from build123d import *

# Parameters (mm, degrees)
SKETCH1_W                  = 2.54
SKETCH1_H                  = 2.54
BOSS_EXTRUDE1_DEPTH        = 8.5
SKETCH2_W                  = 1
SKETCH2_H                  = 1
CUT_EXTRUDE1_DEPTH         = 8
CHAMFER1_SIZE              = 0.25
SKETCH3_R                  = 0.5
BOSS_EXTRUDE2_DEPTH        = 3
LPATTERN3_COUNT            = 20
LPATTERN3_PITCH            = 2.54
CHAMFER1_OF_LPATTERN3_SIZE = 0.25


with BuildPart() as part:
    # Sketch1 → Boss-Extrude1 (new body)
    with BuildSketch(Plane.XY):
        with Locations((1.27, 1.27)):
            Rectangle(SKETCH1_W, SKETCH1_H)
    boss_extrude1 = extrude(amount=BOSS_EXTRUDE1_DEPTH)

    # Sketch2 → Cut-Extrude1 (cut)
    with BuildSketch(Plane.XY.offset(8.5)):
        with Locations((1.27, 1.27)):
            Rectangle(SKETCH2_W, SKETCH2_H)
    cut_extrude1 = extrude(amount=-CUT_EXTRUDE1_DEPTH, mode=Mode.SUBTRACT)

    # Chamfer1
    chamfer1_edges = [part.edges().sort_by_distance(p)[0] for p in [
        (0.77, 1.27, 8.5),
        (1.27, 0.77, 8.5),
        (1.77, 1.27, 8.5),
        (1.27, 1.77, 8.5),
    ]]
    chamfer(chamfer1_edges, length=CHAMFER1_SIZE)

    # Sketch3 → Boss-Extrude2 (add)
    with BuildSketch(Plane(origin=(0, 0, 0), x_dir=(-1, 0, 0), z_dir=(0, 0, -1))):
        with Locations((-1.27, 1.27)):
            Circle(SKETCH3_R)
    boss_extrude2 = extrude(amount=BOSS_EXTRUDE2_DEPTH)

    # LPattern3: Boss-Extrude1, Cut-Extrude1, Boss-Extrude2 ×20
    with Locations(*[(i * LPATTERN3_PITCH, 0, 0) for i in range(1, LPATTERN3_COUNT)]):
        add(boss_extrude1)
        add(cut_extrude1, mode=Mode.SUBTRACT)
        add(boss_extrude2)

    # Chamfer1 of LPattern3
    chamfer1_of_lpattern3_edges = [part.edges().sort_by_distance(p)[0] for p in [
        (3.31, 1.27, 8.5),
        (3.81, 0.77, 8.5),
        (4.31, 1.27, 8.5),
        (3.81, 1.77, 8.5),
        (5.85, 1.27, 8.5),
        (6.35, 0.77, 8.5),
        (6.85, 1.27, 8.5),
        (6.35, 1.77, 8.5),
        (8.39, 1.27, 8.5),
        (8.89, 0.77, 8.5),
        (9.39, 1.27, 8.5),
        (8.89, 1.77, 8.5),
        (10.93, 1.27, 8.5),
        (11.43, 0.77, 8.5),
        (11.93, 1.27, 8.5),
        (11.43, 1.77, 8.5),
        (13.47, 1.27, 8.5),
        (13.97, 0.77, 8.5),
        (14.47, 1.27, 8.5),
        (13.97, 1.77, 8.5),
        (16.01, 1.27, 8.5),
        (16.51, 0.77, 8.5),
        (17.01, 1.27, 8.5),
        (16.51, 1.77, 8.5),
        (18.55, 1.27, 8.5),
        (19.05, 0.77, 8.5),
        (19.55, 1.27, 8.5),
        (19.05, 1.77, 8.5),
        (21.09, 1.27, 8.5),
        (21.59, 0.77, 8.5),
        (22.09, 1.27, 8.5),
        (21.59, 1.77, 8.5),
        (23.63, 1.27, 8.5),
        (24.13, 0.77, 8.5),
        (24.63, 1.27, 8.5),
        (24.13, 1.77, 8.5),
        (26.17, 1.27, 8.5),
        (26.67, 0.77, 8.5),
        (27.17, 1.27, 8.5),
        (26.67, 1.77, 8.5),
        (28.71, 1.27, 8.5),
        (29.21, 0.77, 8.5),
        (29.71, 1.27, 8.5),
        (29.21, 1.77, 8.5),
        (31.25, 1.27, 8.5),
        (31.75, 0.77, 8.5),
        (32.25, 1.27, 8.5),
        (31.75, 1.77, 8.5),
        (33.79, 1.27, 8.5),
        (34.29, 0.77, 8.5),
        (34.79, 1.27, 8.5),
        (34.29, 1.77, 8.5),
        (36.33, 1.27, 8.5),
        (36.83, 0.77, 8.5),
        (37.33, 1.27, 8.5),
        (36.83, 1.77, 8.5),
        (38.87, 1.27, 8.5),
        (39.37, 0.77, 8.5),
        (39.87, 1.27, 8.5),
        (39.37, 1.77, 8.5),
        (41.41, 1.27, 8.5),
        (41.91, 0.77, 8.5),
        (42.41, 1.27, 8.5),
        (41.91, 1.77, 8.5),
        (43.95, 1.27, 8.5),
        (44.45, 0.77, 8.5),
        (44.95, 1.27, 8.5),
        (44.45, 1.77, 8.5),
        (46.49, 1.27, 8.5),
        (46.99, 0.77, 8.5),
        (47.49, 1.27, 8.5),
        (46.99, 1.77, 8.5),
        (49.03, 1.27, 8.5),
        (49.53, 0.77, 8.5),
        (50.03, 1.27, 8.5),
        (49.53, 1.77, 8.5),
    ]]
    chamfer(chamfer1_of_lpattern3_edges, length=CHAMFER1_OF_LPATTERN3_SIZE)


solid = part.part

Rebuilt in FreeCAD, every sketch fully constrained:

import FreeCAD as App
import Part
import Sketcher

V = App.Vector


def edges_at(feature, points):
    """Names of the edges that pass closest to the given points."""
    edges = feature.Shape.Edges
    near = lambda p: min(range(len(edges)), key=lambda i: edges[i].distToShape(Part.Vertex(*p))[0])
    return sorted({f"Edge{near(p) + 1}" for p in points})


def add_polygon(sketch, points):
    """Adds a closed chain of lines whose ends are joined by coincident constraints."""
    first, n = sketch.GeometryCount, len(points)
    for a, b in zip(points, points[1:] + points[:1]):
        sketch.addGeometry(Part.LineSegment(App.Vector(*a, 0), App.Vector(*b, 0)), False)
    for i in range(n):
        sketch.addConstraint(Sketcher.Constraint("Coincident", first + i, 2, first + (i + 1) % n, 1))

doc = App.newDocument("Part")
body = doc.addObject("PartDesign::Body", "Body")

# Sketch on XY plane
sketch1 = body.newObject("Sketcher::SketchObject", "Sketch")
sketch1.AttachmentSupport = (doc.getObject("XY_Plane"), [""])
sketch1.MapMode = "FlatFace"
add_polygon(sketch1, [(0, 2.54), (0, 0), (2.54, 0), (2.54, 2.54)])  # lines 0-3
sketch1.addConstraint([
    Sketcher.Constraint("Vertical", 0),
    Sketcher.Constraint("Horizontal", 1),
    Sketcher.Constraint("Vertical", 2),
    Sketcher.Constraint("Horizontal", 3),
    Sketcher.Constraint("Coincident", 0, 2, -1, 1),
    Sketcher.Constraint("Equal", 3, 0),
    Sketcher.Constraint("DistanceX", 1, 1, 1, 2, 2.54),
])
pad1 = body.newObject("PartDesign::Pad", "Pad")
pad1.Profile = sketch1
pad1.Length = 8.5

# Sketch on XY plane
sketch2 = body.newObject("Sketcher::SketchObject", "Sketch001")
sketch2.AttachmentSupport = (doc.getObject("XY_Plane"), [""])
sketch2.MapMode = "FlatFace"
sketch2.AttachmentOffset = App.Placement(V(0, 0, 8.5), App.Rotation())
add_polygon(sketch2, [(0.77, 1.77), (0.77, 0.77), (1.77, 0.77), (1.77, 1.77)])  # lines 0-3
sketch2.addConstraint([
    Sketcher.Constraint("Vertical", 0),
    Sketcher.Constraint("Horizontal", 1),
    Sketcher.Constraint("Vertical", 2),
    Sketcher.Constraint("Horizontal", 3),
    Sketcher.Constraint("Equal", 3, 0),
    Sketcher.Constraint("DistanceX", 1, 1, 1, 2, 1.0),
    Sketcher.Constraint("DistanceX", -1, 1, 0, 2, 0.77),
    Sketcher.Constraint("DistanceY", -1, 1, 0, 2, 0.77),
])
pocket1 = body.newObject("PartDesign::Pocket", "Pocket")
pocket1.Profile = sketch2
pocket1.Length = 8
doc.recompute()

chamfer = body.newObject("PartDesign::Chamfer", "Chamfer")
chamfer.Base = (pocket1, edges_at(pocket1, [
    (0.77, 1.27, 8.5),
    (1.27, 0.77, 8.5),
    (1.77, 1.27, 8.5),
    (1.27, 1.77, 8.5),
]))
chamfer.Size = 0.25

# Sketch on XY plane
sketch3 = body.newObject("Sketcher::SketchObject", "Sketch002")
sketch3.AttachmentSupport = (doc.getObject("XY_Plane"), [""])
sketch3.MapMode = "FlatFace"
sketch3.addGeometry(Part.Circle(V(1.27, 1.27, 0), V(0, 0, 1), 0.5), False)
sketch3.addConstraint([
    Sketcher.Constraint("Diameter", 0, 1.0),
    Sketcher.Constraint("DistanceX", -1, 1, 0, 3, 1.27),
    Sketcher.Constraint("DistanceY", -1, 1, 0, 3, 1.27),
])
pad2 = body.newObject("PartDesign::Pad", "Pad001")
pad2.Profile = sketch3
pad2.Length = 3
pad2.Reversed = True
doc.recompute()

linearpattern = body.newObject("PartDesign::LinearPattern", "LinearPattern")
linearpattern.Originals = [pad1, pocket1, pad2]
linearpattern.Direction = (doc.getObject("X_Axis"), [""])
linearpattern.Mode = "offset"
linearpattern.Offset = 2.54
linearpattern.Occurrences = 20
body.Tip = linearpattern
doc.recompute()

chamfer2 = body.newObject("PartDesign::Chamfer", "Chamfer001")
chamfer2.Base = (linearpattern, edges_at(linearpattern, [
    (3.31, 1.27, 8.5),
    (3.81, 0.77, 8.5),
    (4.31, 1.27, 8.5),
    (3.81, 1.77, 8.5),
    (5.85, 1.27, 8.5),
    (6.35, 0.77, 8.5),
    (6.85, 1.27, 8.5),
    (6.35, 1.77, 8.5),
    (8.39, 1.27, 8.5),
    (8.89, 0.77, 8.5),
    (9.39, 1.27, 8.5),
    (8.89, 1.77, 8.5),
    (10.93, 1.27, 8.5),
    (11.43, 0.77, 8.5),
    (11.93, 1.27, 8.5),
    (11.43, 1.77, 8.5),
    (13.47, 1.27, 8.5),
    (13.97, 0.77, 8.5),
    (14.47, 1.27, 8.5),
    (13.97, 1.77, 8.5),
    (16.01, 1.27, 8.5),
    (16.51, 0.77, 8.5),
    (17.01, 1.27, 8.5),
    (16.51, 1.77, 8.5),
    (18.55, 1.27, 8.5),
    (19.05, 0.77, 8.5),
    (19.55, 1.27, 8.5),
    (19.05, 1.77, 8.5),
    (21.09, 1.27, 8.5),
    (21.59, 0.77, 8.5),
    (22.09, 1.27, 8.5),
    (21.59, 1.77, 8.5),
    (23.63, 1.27, 8.5),
    (24.13, 0.77, 8.5),
    (24.63, 1.27, 8.5),
    (24.13, 1.77, 8.5),
    (26.17, 1.27, 8.5),
    (26.67, 0.77, 8.5),
    (27.17, 1.27, 8.5),
    (26.67, 1.77, 8.5),
    (28.71, 1.27, 8.5),
    (29.21, 0.77, 8.5),
    (29.71, 1.27, 8.5),
    (29.21, 1.77, 8.5),
    (31.25, 1.27, 8.5),
    (31.75, 0.77, 8.5),
    (32.25, 1.27, 8.5),
    (31.75, 1.77, 8.5),
    (33.79, 1.27, 8.5),
    (34.29, 0.77, 8.5),
    (34.79, 1.27, 8.5),
    (34.29, 1.77, 8.5),
    (36.33, 1.27, 8.5),
    (36.83, 0.77, 8.5),
    (37.33, 1.27, 8.5),
    (36.83, 1.77, 8.5),
    (38.87, 1.27, 8.5),
    (39.37, 0.77, 8.5),
    (39.87, 1.27, 8.5),
    (39.37, 1.77, 8.5),
    (41.41, 1.27, 8.5),
    (41.91, 0.77, 8.5),
    (42.41, 1.27, 8.5),
    (41.91, 1.77, 8.5),
    (43.95, 1.27, 8.5),
    (44.45, 0.77, 8.5),
    (44.95, 1.27, 8.5),
    (44.45, 1.77, 8.5),
    (46.49, 1.27, 8.5),
    (46.99, 0.77, 8.5),
    (47.49, 1.27, 8.5),
    (46.99, 1.77, 8.5),
    (49.03, 1.27, 8.5),
    (49.53, 0.77, 8.5),
    (50.03, 1.27, 8.5),
    (49.53, 1.77, 8.5),
]))
chamfer2.Size = 0.25

doc.recompute()
